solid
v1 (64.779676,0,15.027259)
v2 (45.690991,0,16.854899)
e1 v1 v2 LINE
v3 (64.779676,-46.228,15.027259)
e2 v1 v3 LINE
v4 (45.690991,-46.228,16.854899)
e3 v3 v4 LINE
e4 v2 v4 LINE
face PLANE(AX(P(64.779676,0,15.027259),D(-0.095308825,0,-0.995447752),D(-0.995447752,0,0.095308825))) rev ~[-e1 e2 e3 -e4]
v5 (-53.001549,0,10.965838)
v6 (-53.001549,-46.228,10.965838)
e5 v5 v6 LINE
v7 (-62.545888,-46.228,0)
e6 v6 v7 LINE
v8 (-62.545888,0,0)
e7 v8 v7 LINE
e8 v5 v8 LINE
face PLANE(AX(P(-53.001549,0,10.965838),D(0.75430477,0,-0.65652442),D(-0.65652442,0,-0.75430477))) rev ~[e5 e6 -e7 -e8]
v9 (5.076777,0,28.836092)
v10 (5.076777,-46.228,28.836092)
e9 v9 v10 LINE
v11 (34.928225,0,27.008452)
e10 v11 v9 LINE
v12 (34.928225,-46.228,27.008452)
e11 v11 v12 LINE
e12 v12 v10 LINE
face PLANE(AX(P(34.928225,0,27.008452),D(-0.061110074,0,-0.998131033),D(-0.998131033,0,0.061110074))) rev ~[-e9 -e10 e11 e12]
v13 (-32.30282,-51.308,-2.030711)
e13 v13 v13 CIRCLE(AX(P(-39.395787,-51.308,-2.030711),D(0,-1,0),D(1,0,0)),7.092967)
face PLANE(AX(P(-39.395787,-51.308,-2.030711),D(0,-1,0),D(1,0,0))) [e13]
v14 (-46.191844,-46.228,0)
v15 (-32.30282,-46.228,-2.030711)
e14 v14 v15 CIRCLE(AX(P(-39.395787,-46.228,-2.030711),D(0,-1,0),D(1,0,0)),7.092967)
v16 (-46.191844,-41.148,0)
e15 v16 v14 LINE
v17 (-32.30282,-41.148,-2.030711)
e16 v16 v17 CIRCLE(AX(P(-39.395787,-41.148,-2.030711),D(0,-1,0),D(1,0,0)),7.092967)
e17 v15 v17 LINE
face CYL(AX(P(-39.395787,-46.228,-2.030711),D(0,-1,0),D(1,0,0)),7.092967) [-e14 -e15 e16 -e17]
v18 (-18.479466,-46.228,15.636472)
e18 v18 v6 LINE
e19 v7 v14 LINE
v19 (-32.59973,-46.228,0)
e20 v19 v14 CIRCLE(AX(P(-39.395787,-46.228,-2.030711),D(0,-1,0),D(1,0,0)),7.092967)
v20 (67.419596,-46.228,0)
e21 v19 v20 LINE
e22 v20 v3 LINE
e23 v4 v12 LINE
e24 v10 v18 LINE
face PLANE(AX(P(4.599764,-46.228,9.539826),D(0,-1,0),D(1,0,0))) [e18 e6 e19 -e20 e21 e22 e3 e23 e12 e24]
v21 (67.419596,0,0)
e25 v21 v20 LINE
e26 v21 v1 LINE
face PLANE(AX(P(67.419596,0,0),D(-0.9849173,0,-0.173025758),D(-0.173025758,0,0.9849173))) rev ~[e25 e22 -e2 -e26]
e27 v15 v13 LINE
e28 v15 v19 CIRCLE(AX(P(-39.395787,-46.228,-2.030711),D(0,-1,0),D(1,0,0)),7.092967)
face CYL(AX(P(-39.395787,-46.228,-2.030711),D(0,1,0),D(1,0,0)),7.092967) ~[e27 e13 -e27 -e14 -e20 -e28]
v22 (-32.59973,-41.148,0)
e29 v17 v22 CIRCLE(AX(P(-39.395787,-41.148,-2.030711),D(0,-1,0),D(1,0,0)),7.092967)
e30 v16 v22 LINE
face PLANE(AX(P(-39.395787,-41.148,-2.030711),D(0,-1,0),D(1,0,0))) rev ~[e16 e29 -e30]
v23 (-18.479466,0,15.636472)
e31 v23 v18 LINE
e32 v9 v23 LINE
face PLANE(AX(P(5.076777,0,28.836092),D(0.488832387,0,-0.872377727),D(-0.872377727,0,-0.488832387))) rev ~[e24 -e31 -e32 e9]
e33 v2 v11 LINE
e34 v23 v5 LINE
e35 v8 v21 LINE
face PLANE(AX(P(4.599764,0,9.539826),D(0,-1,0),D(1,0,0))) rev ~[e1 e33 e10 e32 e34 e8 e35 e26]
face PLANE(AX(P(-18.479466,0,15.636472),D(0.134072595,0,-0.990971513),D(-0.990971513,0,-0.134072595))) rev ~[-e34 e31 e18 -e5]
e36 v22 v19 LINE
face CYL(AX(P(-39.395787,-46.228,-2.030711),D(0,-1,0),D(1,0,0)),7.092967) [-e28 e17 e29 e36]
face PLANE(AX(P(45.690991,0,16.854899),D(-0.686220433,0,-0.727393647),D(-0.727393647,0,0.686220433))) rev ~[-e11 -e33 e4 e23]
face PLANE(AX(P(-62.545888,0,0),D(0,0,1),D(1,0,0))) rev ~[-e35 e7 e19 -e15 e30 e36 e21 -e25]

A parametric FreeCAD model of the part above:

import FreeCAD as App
import Part
import Sketcher

V = App.Vector

doc = App.newDocument("Part")
params = doc.addObject("Spreadsheet::Sheet", "Params")
for row, (alias, value) in enumerate([
    ("pad1_length", "1.82 in"),
    ("pad2_length", "0.2 in"),
    ("pad2_length2", "0.2 in"),
], start=1):
    params.set(f"A{row}", alias)
    params.set(f"B{row}", "=" + value)
    params.setAlias(f"B{row}", alias)

body = doc.addObject("PartDesign::Body", "Body")

# Sketch on XZ plane
sketch1 = body.newObject("Sketcher::SketchObject", "Sketch")
sketch1.AttachmentSupport = (doc.getObject("XZ_Plane"), [""])
sketch1.MapMode = "FlatFace"
sketch1.addGeometry([
    Part.LineSegment(V(-53, 11, 0), V(-63, 0, 0)),  # 0
    Part.LineSegment(V(-63, 0, 0), V(67, 0, 0)),  # 1
    Part.LineSegment(V(67, 0, 0), V(65, 15, 0)),  # 2
    Part.LineSegment(V(65, 15, 0), V(46, 17, 0)),  # 3
    Part.LineSegment(V(46, 17, 0), V(35, 27, 0)),  # 4
    Part.LineSegment(V(35, 27, 0), V(5, 29, 0)),  # 5
    Part.LineSegment(V(5, 29, 0), V(-18, 16, 0)),  # 6
    Part.LineSegment(V(-18, 16, 0), V(-53, 11, 0)),  # 7
], False)
sketch1.addConstraint([
    Sketcher.Constraint("Coincident", 0, 2, 1, 1),
    Sketcher.Constraint("Coincident", 1, 2, 2, 1),
    Sketcher.Constraint("Coincident", 2, 2, 3, 1),
    Sketcher.Constraint("Coincident", 3, 2, 4, 1),
    Sketcher.Constraint("Coincident", 4, 2, 5, 1),
    Sketcher.Constraint("Coincident", 5, 2, 6, 1),
    Sketcher.Constraint("Coincident", 6, 2, 7, 1),
    Sketcher.Constraint("Coincident", 7, 2, 0, 1),
    Sketcher.Constraint("Horizontal", 1),
    Sketcher.Constraint("PointOnObject", 0, 2, -1),
    Sketcher.Constraint("DistanceY", -1, 1, 3, 2, 16.854899),
    Sketcher.Constraint("DistanceX", 5, 2, 2, 2, 59.702899),
    Sketcher.Constraint("Distance", 2, 15.257382),
    Sketcher.Constraint("Distance", 3, 19.175979),
    Sketcher.Constraint("DistanceX", 1, 1, 1, 2, 129.965484),
    Sketcher.Constraint("DistanceY", -1, 1, 2, 2, 15.027259),
    Sketcher.Constraint("DistanceX", -1, 1, 3, 2, 45.690991),
    Sketcher.Constraint("DistanceY", -1, 1, 4, 2, 27.008452),
    Sketcher.Constraint("DistanceX", 7, 2, -1, 1, 53.001549),
    Sketcher.Constraint("DistanceX", 4, 2, 2, 2, 29.851451),
    Sketcher.Constraint("DistanceY", 4, 2, 5, 2, 1.82764),
    Sketcher.Constraint("DistanceY", 6, 2, 5, 2, 13.19962),
    Sketcher.Constraint("DistanceX", 6, 2, 4, 2, 53.407691),
    Sketcher.Constraint("DistanceY", 7, 2, 3, 2, 5.889061),
])
pad1 = body.newObject("PartDesign::Pad", "Pad")
pad1.Profile = sketch1
pad1.setExpression("Length", "Params.pad1_length")

# Sketch on XZ plane
sketch2 = body.newObject("Sketcher::SketchObject", "Sketch001")
sketch2.AttachmentSupport = (doc.getObject("XZ_Plane"), [""])
sketch2.MapMode = "FlatFace"
sketch2.AttachmentOffset = App.Placement(V(0, 0, 1.82 * 25.4), App.Rotation())
sketch2.addGeometry(Part.Circle(V(-39, -2, 0), V(0, 0, 1), 7), False)
sketch2.addConstraint([
    Sketcher.Constraint("Diameter", 0, 14.185934),
    Sketcher.Constraint("DistanceY", 0, 3, -1, 1, 2.030711),
    Sketcher.Constraint("DistanceX", 0, 3, -1, 1, 39.395787),
])
pad2 = body.newObject("PartDesign::Pad", "Pad001")
pad2.Profile = sketch2
pad2.Type = "TwoLengths"
pad2.setExpression("Length", "Params.pad2_length")
pad2.setExpression("Length2", "Params.pad2_length2")

doc.recompute()
